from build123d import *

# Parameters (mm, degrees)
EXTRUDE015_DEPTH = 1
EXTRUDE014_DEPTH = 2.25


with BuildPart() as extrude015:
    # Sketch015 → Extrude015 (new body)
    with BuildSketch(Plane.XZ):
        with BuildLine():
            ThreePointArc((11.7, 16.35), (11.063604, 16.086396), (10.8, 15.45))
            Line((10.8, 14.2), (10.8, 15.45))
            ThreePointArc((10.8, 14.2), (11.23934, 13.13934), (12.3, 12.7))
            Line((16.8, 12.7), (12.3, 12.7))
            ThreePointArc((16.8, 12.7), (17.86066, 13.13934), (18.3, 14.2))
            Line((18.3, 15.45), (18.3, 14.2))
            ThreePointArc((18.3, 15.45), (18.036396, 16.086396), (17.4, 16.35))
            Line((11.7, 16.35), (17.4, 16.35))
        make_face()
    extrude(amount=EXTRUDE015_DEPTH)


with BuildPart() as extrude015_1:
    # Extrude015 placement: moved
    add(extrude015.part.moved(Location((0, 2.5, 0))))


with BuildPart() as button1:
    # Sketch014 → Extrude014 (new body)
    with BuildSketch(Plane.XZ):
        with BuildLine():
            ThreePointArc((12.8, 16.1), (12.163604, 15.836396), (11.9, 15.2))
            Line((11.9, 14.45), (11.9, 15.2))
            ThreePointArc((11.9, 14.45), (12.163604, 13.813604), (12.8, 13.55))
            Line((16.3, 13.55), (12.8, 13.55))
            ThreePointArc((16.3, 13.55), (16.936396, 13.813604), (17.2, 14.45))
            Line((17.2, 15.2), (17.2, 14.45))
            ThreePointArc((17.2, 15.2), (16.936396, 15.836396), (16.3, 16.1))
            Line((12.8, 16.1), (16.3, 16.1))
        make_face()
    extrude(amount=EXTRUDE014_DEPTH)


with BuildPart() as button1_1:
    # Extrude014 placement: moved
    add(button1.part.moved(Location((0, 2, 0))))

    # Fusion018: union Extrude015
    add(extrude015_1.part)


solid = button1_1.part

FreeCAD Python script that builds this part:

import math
import FreeCAD as App
import Part
import Sketcher
from FreeCAD import Vector

doc = App.newDocument("Part")
body = doc.addObject("PartDesign::Body", "Body")

# Sketch on XZ plane
sketch1 = body.newObject("Sketcher::SketchObject", "Sketch")
sketch1.AttachmentSupport = (doc.getObject("XZ_Plane"), [""])
sketch1.MapMode = "FlatFace"
sketch1.addGeometry([
    Part.ArcOfCircle(Part.Circle(Vector(11.7, 15.4, 0), Vector(0, 0, 1), 0.9), math.radians(90), math.radians(180)),  # 0
    Part.LineSegment(Vector(10.8, 15.4, 0), Vector(10.8, 14.2, 0)),  # 1
    Part.ArcOfCircle(Part.Circle(Vector(12.3, 14.2, 0), Vector(0, 0, 1), 1.5), math.radians(-180), math.radians(-90)),  # 2
    Part.LineSegment(Vector(12.3, 12.7, 0), Vector(16.8, 12.7, 0)),  # 3
    Part.ArcOfCircle(Part.Circle(Vector(16.8, 14.2, 0), Vector(0, 0, 1), 1.5), math.radians(-90), math.radians(0)),  # 4
    Part.LineSegment(Vector(18.3, 14.2, 0), Vector(18.3, 15.4, 0)),  # 5
    Part.ArcOfCircle(Part.Circle(Vector(17.4, 15.4, 0), Vector(0, 0, 1), 0.9), math.radians(0), math.radians(90)),  # 6
    Part.LineSegment(Vector(17.4, 16.4, 0), Vector(11.7, 16.4, 0)),  # 7
], False)
sketch1.addConstraint([
    Sketcher.Constraint("Tangent", 0, 2, 1, 1),
    Sketcher.Constraint("Tangent", 1, 2, 2, 1),
    Sketcher.Constraint("Tangent", 2, 2, 3, 1),
    Sketcher.Constraint("Tangent", 3, 2, 4, 1),
    Sketcher.Constraint("Tangent", 4, 2, 5, 1),
    Sketcher.Constraint("Tangent", 5, 2, 6, 1),
    Sketcher.Constraint("Tangent", 6, 2, 7, 1),
    Sketcher.Constraint("Tangent", 7, 2, 0, 1),
    Sketcher.Constraint("Vertical", 1),
    Sketcher.Constraint("Horizontal", 3),
    Sketcher.Constraint("Vertical", 5),
    Sketcher.Constraint("Horizontal", 7),
    Sketcher.Constraint("Equal", 2, 4),
    Sketcher.Constraint("Equal", 0, 6),
    Sketcher.Constraint("Radius", 0, 0.9),
    Sketcher.Constraint("Radius", 2, 1.500001),
    Sketcher.Constraint("DistanceX", 3, 1, 3, 2, 4.5),
    Sketcher.Constraint("DistanceY", 1, 2, 1, 1, 1.25),
    Sketcher.Constraint("DistanceX", -1, 1, 0, 3, 11.7),
    Sketcher.Constraint("DistanceY", -1, 1, 2, 3, 14.200001),
])
pad1 = body.newObject("PartDesign::Pad", "Pad")
pad1.Profile = sketch1
pad1.Length = 1
body2 = doc.addObject("PartDesign::Body", "Body001")
doc.recompute()

body.Placement = App.Placement(Vector(0, 2.5, 0), App.Rotation(Vector(0, 0, 1), 0))
boolean = body2.newObject("PartDesign::Boolean", "Boolean")
boolean.Type = "Fuse"
boolean.addObjects([body])
body3 = doc.addObject("PartDesign::Body", "Body002")

# Sketch on XZ plane
sketch2 = body3.newObject("Sketcher::SketchObject", "Sketch001")
sketch2.AttachmentSupport = (doc.getObject("XZ_Plane002"), [""])
sketch2.MapMode = "FlatFace"
sketch2.addGeometry([
    Part.ArcOfCircle(Part.Circle(Vector(12.8, 15.2, 0), Vector(0, 0, 1), 0.9), math.radians(90), math.radians(180)),  # 0
    Part.LineSegment(Vector(11.9, 15.2, 0), Vector(11.9, 14.4, 0)),  # 1
    Part.ArcOfCircle(Part.Circle(Vector(12.8, 14.5, 0), Vector(0, 0, 1), 0.9), math.radians(-180), math.radians(-90)),  # 2
    Part.LineSegment(Vector(12.8, 13.6, 0), Vector(16.3, 13.6, 0)),  # 3
    Part.ArcOfCircle(Part.Circle(Vector(16.3, 14.5, 0), Vector(0, 0, 1), 0.9), math.radians(-90), math.radians(0)),  # 4
    Part.LineSegment(Vector(17.2, 14.4, 0), Vector(17.2, 15.2, 0)),  # 5
    Part.ArcOfCircle(Part.Circle(Vector(16.3, 15.2, 0), Vector(0, 0, 1), 0.9), math.radians(0), math.radians(90)),  # 6
    Part.LineSegment(Vector(16.3, 16.1, 0), Vector(12.8, 16.1, 0)),  # 7
], False)
sketch2.addConstraint([
    Sketcher.Constraint("Tangent", 0, 2, 1, 1),
    Sketcher.Constraint("Tangent", 1, 2, 2, 1),
    Sketcher.Constraint("Tangent", 2, 2, 3, 1),
    Sketcher.Constraint("Tangent", 3, 2, 4, 1),
    Sketcher.Constraint("Tangent", 4, 2, 5, 1),
    Sketcher.Constraint("Tangent", 5, 2, 6, 1),
    Sketcher.Constraint("Tangent", 6, 2, 7, 1),
    Sketcher.Constraint("Tangent", 7, 2, 0, 1),
    Sketcher.Constraint("Vertical", 1),
    Sketcher.Constraint("Horizontal", 3),
    Sketcher.Constraint("Vertical", 5),
    Sketcher.Constraint("Horizontal", 7),
    Sketcher.Constraint("Equal", 0, 2),
    Sketcher.Constraint("Equal", 2, 4),
    Sketcher.Constraint("Equal", 4, 6),
    Sketcher.Constraint("Radius", 0, 0.9),
    Sketcher.Constraint("DistanceX", 3, 1, 3, 2, 3.5),
    Sketcher.Constraint("DistanceY", 1, 2, 1, 1, 0.75),
    Sketcher.Constraint("DistanceX", -1, 1, 0, 3, 12.8),
    Sketcher.Constraint("DistanceY", -1, 1, 0, 3, 15.2),
])
pad2 = body3.newObject("PartDesign::Pad", "Pad001")
pad2.Profile = sketch2
pad2.Length = 2.25
body4 = doc.addObject("PartDesign::Body", "Body003")
doc.recompute()

body3.Placement = App.Placement(Vector(0, 2, 0), App.Rotation(Vector(0, 0, 1), 0))
boolean2 = body4.newObject("PartDesign::Boolean", "Boolean001")
boolean2.Type = "Fuse"
boolean2.addObjects([body3])
doc.recompute()

boolean3 = body4.newObject("PartDesign::Boolean", "Boolean002")
boolean3.Type = "Fuse"
boolean3.addObjects([body2])

doc.recompute()
